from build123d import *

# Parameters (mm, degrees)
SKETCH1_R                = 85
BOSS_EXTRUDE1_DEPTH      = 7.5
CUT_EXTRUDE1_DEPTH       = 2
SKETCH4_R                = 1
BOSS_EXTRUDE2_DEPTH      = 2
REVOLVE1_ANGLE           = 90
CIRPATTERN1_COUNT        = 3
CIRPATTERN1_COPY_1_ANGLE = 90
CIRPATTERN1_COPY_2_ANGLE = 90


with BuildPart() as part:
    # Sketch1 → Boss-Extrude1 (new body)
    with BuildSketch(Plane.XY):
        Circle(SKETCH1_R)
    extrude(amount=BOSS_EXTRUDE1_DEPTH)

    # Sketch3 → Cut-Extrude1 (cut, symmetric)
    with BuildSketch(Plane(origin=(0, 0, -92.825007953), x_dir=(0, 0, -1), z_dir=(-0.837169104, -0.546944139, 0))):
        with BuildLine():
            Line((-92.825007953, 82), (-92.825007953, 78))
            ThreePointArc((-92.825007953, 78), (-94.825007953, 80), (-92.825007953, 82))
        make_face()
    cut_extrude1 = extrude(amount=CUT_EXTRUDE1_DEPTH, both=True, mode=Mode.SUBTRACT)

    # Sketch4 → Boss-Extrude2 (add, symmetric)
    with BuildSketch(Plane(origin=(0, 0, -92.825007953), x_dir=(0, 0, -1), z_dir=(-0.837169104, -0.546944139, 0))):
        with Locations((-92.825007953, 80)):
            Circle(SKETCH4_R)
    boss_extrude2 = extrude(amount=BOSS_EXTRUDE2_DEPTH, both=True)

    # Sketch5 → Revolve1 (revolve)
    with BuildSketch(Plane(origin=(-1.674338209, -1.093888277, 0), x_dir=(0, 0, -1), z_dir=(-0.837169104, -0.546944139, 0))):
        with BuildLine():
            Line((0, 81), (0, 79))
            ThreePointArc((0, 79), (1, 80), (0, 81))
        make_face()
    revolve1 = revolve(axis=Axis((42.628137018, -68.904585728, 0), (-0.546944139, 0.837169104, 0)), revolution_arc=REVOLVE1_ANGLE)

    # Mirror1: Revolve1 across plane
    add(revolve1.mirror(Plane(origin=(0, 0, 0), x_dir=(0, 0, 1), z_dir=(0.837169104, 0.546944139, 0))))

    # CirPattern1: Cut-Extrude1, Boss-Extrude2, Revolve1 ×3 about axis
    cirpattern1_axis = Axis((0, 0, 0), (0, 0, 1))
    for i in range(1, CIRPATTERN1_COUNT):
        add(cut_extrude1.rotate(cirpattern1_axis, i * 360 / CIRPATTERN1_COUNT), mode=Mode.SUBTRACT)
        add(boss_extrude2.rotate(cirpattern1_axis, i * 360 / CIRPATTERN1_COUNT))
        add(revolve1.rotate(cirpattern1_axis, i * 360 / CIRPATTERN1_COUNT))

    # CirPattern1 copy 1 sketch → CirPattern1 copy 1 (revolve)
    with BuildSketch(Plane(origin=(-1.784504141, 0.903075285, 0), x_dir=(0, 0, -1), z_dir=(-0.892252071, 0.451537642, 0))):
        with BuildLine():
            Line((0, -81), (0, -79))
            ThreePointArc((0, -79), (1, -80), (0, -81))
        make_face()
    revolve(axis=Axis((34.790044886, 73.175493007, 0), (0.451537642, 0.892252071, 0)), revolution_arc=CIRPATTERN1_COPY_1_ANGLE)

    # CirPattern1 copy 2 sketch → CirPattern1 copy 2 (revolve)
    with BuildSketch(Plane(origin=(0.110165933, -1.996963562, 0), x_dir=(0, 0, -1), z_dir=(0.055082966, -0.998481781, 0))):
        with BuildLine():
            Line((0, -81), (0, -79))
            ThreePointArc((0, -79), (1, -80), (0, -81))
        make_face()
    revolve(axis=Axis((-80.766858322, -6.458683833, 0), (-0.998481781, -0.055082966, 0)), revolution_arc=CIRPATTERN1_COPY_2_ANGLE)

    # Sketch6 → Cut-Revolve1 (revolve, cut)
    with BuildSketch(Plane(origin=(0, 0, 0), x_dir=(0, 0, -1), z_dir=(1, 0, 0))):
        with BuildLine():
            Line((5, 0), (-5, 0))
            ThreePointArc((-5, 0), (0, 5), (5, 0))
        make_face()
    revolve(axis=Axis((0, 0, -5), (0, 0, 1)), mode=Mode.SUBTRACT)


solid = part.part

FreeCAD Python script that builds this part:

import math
import FreeCAD as App
import Part
import Sketcher

doc = App.newDocument("Part")
body = doc.addObject("PartDesign::Body", "Body")

# Sketch on XY plane
sketch1 = body.newObject("Sketcher::SketchObject", "Sketch")
sketch1.AttachmentSupport = (doc.getObject("XY_Plane"), [""])
sketch1.MapMode = "FlatFace"
sketch1.addGeometry(Part.Circle(App.Vector(0, 0, 0), App.Vector(0, 0, 1), 85), False)
sketch1.addConstraint(Sketcher.Constraint("Coincident", 0, 3, -1, 1))
sketch1.addConstraint(Sketcher.Constraint("Diameter", 0, 170.0))
pad1 = body.newObject("PartDesign::Pad", "Pad")
pad1.Profile = sketch1
pad1.Length = 7.5

# Sketch on an angled plane
sketch2 = body.newObject("Sketcher::SketchObject", "Sketch001")
sketch2.Placement = App.Placement(App.Vector(0, 0, -92.825008), App.Rotation(App.Vector(0, 0, -1), App.Vector(0.546944139, -0.837169104, 0), App.Vector(-0.837169104, -0.546944139, 0), "ZXY"))
sketch2.addGeometry(Part.LineSegment(App.Vector(-92.825008, 78, 0), App.Vector(-92.825008, 82, 0)), False)
sketch2.addGeometry(Part.ArcOfCircle(Part.Circle(App.Vector(-92.825008, 80, 0), App.Vector(0, 0, 1), 2), math.radians(90), math.radians(270)), False)
sketch2.addConstraint(Sketcher.Constraint("Coincident", 0, 1, 1, 2))
sketch2.addConstraint(Sketcher.Constraint("Coincident", 1, 1, 0, 2))
sketch2.addConstraint(Sketcher.Constraint("Vertical", 0))
sketch2.addConstraint(Sketcher.Constraint("Vertical", 1, 3, 0, 1))
sketch2.addConstraint(Sketcher.Constraint("Radius", 1, 2.0))
sketch2.addConstraint(Sketcher.Constraint("DistanceY", -1, 1, 1, 3, 80.0))
sketch2.addConstraint(Sketcher.Constraint("DistanceX", 1, 3, -1, 1, 92.825008))
pocket1 = body.newObject("PartDesign::Pocket", "Pocket")
pocket1.Profile = sketch2
pocket1.Length = 4
pocket1.Midplane = True

# Sketch on an angled plane
sketch3 = body.newObject("Sketcher::SketchObject", "Sketch002")
sketch3.Placement = App.Placement(App.Vector(0, 0, -92.825008), App.Rotation(App.Vector(0, 0, -1), App.Vector(0.546944139, -0.837169104, 0), App.Vector(-0.837169104, -0.546944139, 0), "ZXY"))
sketch3.addGeometry(Part.Circle(App.Vector(-92.825008, 80, 0), App.Vector(0, 0, 1), 1), False)
sketch3.addConstraint(Sketcher.Constraint("Diameter", 0, 2.0))
sketch3.addConstraint(Sketcher.Constraint("DistanceY", -1, 1, 0, 3, 80.0))
sketch3.addConstraint(Sketcher.Constraint("DistanceX", 0, 3, -1, 1, 92.825008))
pad2 = body.newObject("PartDesign::Pad", "Pad001")
pad2.Profile = sketch3
pad2.Length = 4
pad2.Midplane = True

# Sketch on an angled plane
sketch4 = body.newObject("Sketcher::SketchObject", "Sketch003")
sketch4.Placement = App.Placement(App.Vector(-1.674338, -1.093888, 0), App.Rotation(App.Vector(0, 0, -1), App.Vector(0.546944139, -0.837169104, 0), App.Vector(-0.837169104, -0.546944139, 0), "ZXY"))
sketch4.addGeometry(Part.LineSegment(App.Vector(0, 81, 0), App.Vector(0, 79, 0)), False)
sketch4.addGeometry(Part.ArcOfCircle(Part.Circle(App.Vector(0, 80, 0), App.Vector(0, 0, 1), 1), math.radians(-90), math.radians(90)), False)
sketch4.addConstraint(Sketcher.Constraint("Coincident", 0, 1, 1, 2))
sketch4.addConstraint(Sketcher.Constraint("Coincident", 1, 1, 0, 2))
sketch4.addConstraint(Sketcher.Constraint("Vertical", 0))
sketch4.addConstraint(Sketcher.Constraint("PointOnObject", 1, 3, -2))
sketch4.addConstraint(Sketcher.Constraint("PointOnObject", 0, 1, -2))
sketch4.addConstraint(Sketcher.Constraint("Radius", 1, 1.0))
sketch4.addConstraint(Sketcher.Constraint("DistanceY", -1, 1, 1, 3, 80.0))
revolution = body.newObject("PartDesign::Revolution", "Revolution")
revolution.Profile = sketch4
revolution.ReferenceAxis = (sketch4, ["V_Axis"])
revolution.Angle = 90
revolution.Reversed = True
doc.recompute()

datumplane = body.newObject("PartDesign::Plane", "DatumPlane")
datumplane.Placement = App.Placement(App.Vector(0, 0, 0), App.Rotation(App.Vector(0.546944139, -0.837169104, 0), App.Vector(0, 0, -1), App.Vector(0.837169104, 0.546944139, 0), "ZXY"))
mirrored = body.newObject("PartDesign::Mirrored", "Mirrored")
mirrored.Originals = [revolution]
mirrored.MirrorPlane = (datumplane, [""])
body.Tip = mirrored
doc.recompute()

polarpattern = body.newObject("PartDesign::PolarPattern", "PolarPattern")
polarpattern.Originals = [pocket1, pad2, revolution]
polarpattern.Axis = (doc.getObject("Z_Axis"), [""])
polarpattern.Angle = 360
polarpattern.Occurrences = 3
body.Tip = polarpattern

# Sketch on an angled plane
sketch5 = body.newObject("Sketcher::SketchObject", "Sketch004")
sketch5.Placement = App.Placement(App.Vector(-1.784504, 0.903075, 0), App.Rotation(App.Vector(0, 0, -1), App.Vector(-0.451537642, -0.892252071, 0), App.Vector(-0.892252071, 0.451537642, 0), "ZXY"))
sketch5.addGeometry(Part.LineSegment(App.Vector(0, -79, 0), App.Vector(0, -81, 0)), False)
sketch5.addGeometry(Part.ArcOfCircle(Part.Circle(App.Vector(0, -80, 0), App.Vector(0, 0, 1), 1), math.radians(-90), math.radians(90)), False)
sketch5.addConstraint(Sketcher.Constraint("Coincident", 0, 1, 1, 2))
sketch5.addConstraint(Sketcher.Constraint("Coincident", 1, 1, 0, 2))
sketch5.addConstraint(Sketcher.Constraint("Vertical", 0))
sketch5.addConstraint(Sketcher.Constraint("PointOnObject", 1, 3, -2))
sketch5.addConstraint(Sketcher.Constraint("PointOnObject", 0, 1, -2))
sketch5.addConstraint(Sketcher.Constraint("Radius", 1, 1.0))
sketch5.addConstraint(Sketcher.Constraint("DistanceY", 1, 3, -1, 1, 80.0))
revolution2 = body.newObject("PartDesign::Revolution", "Revolution001")
revolution2.Profile = sketch5
revolution2.ReferenceAxis = (sketch5, ["V_Axis"])
revolution2.Angle = 90
revolution2.Reversed = True

# Sketch on an angled plane
sketch6 = body.newObject("Sketcher::SketchObject", "Sketch005")
sketch6.Placement = App.Placement(App.Vector(0.110166, -1.996964, 0), App.Rotation(App.Vector(0, 0, -1), App.Vector(0.998481781, 0.055082966, 0), App.Vector(0.055082966, -0.998481781, 0), "ZXY"))
sketch6.addGeometry(Part.LineSegment(App.Vector(0, -79, 0), App.Vector(0, -81, 0)), False)
sketch6.addGeometry(Part.ArcOfCircle(Part.Circle(App.Vector(0, -80, 0), App.Vector(0, 0, 1), 1), math.radians(-90), math.radians(90)), False)
sketch6.addConstraint(Sketcher.Constraint("Coincident", 0, 1, 1, 2))
sketch6.addConstraint(Sketcher.Constraint("Coincident", 1, 1, 0, 2))
sketch6.addConstraint(Sketcher.Constraint("Vertical", 0))
sketch6.addConstraint(Sketcher.Constraint("PointOnObject", 1, 3, -2))
sketch6.addConstraint(Sketcher.Constraint("PointOnObject", 0, 1, -2))
sketch6.addConstraint(Sketcher.Constraint("Radius", 1, 1.0))
sketch6.addConstraint(Sketcher.Constraint("DistanceY", 1, 3, -1, 1, 80.0))
revolution3 = body.newObject("PartDesign::Revolution", "Revolution002")
revolution3.Profile = sketch6
revolution3.ReferenceAxis = (sketch6, ["V_Axis"])
revolution3.Angle = 90
revolution3.Reversed = True

# Sketch on YZ plane
sketch7 = body.newObject("Sketcher::SketchObject", "Sketch006")
sketch7.AttachmentSupport = (doc.getObject("YZ_Plane"), [""])
sketch7.MapMode = "FlatFace"
sketch7.addGeometry(Part.LineSegment(App.Vector(0, 5, 0), App.Vector(0, -5, 0)), False)
sketch7.addGeometry(Part.ArcOfCircle(Part.Circle(App.Vector(0, 0, 0), App.Vector(0, 0, 1), 5), math.radians(-90), math.radians(90)), False)
sketch7.addConstraint(Sketcher.Constraint("Coincident", 0, 1, 1, 2))
sketch7.addConstraint(Sketcher.Constraint("Coincident", 1, 1, 0, 2))
sketch7.addConstraint(Sketcher.Constraint("Vertical", 0))
sketch7.addConstraint(Sketcher.Constraint("Coincident", 1, 3, -1, 1))
sketch7.addConstraint(Sketcher.Constraint("PointOnObject", 0, 1, -2))
sketch7.addConstraint(Sketcher.Constraint("Radius", 1, 5.0))
groove = body.newObject("PartDesign::Groove", "Groove")
groove.Profile = sketch7
groove.ReferenceAxis = (sketch7, ["V_Axis"])
groove.Angle = 360

doc.recompute()
